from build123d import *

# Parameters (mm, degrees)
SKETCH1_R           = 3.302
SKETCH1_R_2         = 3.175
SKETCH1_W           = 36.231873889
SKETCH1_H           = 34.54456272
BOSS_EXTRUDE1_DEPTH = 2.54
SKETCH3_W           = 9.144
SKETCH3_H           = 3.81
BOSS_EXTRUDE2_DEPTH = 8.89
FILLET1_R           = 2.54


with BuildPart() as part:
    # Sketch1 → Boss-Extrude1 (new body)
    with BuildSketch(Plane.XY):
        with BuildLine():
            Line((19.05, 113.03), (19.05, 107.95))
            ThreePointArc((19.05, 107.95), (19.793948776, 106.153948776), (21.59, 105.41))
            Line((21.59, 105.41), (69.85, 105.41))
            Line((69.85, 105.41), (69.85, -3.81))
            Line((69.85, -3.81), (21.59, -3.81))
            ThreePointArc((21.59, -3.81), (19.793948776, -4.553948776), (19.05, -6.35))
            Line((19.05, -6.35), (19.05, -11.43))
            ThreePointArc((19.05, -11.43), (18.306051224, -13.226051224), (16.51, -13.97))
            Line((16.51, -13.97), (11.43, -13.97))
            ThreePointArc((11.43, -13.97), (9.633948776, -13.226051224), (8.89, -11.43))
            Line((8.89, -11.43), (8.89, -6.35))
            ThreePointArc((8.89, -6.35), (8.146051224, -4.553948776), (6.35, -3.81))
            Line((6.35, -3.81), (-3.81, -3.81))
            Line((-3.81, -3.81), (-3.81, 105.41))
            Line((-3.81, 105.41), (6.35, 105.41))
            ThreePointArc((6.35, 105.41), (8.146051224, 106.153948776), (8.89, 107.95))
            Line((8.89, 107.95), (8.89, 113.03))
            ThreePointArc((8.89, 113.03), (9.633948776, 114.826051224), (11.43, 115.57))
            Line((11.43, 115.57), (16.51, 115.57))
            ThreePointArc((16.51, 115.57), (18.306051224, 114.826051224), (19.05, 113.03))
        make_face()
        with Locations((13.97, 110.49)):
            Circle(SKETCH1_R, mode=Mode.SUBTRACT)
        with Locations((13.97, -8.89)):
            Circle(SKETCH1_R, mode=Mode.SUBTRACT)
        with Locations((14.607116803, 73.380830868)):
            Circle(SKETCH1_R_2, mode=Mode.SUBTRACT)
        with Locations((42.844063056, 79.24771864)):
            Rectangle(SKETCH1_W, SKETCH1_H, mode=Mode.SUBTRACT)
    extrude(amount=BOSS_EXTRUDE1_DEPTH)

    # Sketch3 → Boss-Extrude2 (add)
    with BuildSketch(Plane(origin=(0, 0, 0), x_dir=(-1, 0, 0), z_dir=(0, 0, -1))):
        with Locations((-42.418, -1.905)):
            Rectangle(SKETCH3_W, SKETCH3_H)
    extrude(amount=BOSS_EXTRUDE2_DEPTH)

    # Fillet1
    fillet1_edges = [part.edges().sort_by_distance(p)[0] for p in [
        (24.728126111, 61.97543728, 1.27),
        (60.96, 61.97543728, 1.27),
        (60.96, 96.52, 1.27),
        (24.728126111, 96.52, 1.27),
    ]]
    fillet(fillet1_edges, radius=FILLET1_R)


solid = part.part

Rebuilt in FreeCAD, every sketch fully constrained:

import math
import FreeCAD as App
import Part
import Sketcher
Q = App.Units.Quantity


def edges_at(feature, points):
    """Names of the edges that pass closest to the given points."""
    edges = feature.Shape.Edges
    near = lambda p: min(range(len(edges)), key=lambda i: edges[i].distToShape(Part.Vertex(*p))[0])
    return sorted({f"Edge{near(p) + 1}" for p in points})


def add_polygon(sketch, points):
    """Adds a closed chain of lines whose ends are joined by coincident constraints."""
    first, n = sketch.GeometryCount, len(points)
    for a, b in zip(points, points[1:] + points[:1]):
        sketch.addGeometry(Part.LineSegment(App.Vector(*a, 0), App.Vector(*b, 0)), False)
    for i in range(n):
        sketch.addConstraint(Sketcher.Constraint("Coincident", first + i, 2, first + (i + 1) % n, 1))

doc = App.newDocument("Part")
params = doc.addObject("Spreadsheet::Sheet", "Params")
for row, (alias, value) in enumerate([
    ("sketch1_radius", "0.1 in"),
    ("sketch1_diameter", "0.26 in"),
    ("sketch1_diameter2", "0.25 in"),
    ("sketch1_width", "0.2 in"),
    ("sketch1_width2", "0.4 in"),
    ("pad1_length", "0.1 in"),
    ("sketch2_width", "0.36 in"),
    ("sketch2_height", "0.15 in"),
    ("pad2_length", "0.35 in"),
    ("fillet_radius", "0.1 in"),
], start=1):
    params.set(f"A{row}", alias)
    params.set(f"B{row}", "=" + value)
    params.setAlias(f"B{row}", alias)

body = doc.addObject("PartDesign::Body", "Body")

sketch1 = doc.addObject("Sketcher::SketchObject", "Sketch")
body.addObject(sketch1)
sketch1.AttachmentSupport = (doc.XY_Plane, [""])
sketch1.MapMode = "FlatFace"
sketch1.addGeometry(Part.LineSegment(App.Vector(19.05, 107.95, 0), App.Vector(19.05, 113.03, 0)), False)
sketch1.addGeometry(Part.ArcOfCircle(Part.Circle(App.Vector(16.51, 113.03, 0), App.Vector(0, 0, 1), 2.54), math.radians(0), math.radians(90)), False)
sketch1.addGeometry(Part.LineSegment(App.Vector(16.51, 115.57, 0), App.Vector(11.43, 115.57, 0)), False)
sketch1.addGeometry(Part.ArcOfCircle(Part.Circle(App.Vector(11.43, 113.03, 0), App.Vector(0, 0, 1), 2.54), math.radians(90), math.radians(180)), False)
sketch1.addGeometry(Part.LineSegment(App.Vector(8.89, 113.03, 0), App.Vector(8.89, 107.95, 0)), False)
sketch1.addGeometry(Part.ArcOfCircle(Part.Circle(App.Vector(6.35, 107.95, 0), App.Vector(0, 0, 1), 2.54), math.radians(-90), math.radians(0)), False)
sketch1.addGeometry(Part.LineSegment(App.Vector(6.35, 105.41, 0), App.Vector(-3.81, 105.41, 0)), False)
sketch1.addGeometry(Part.LineSegment(App.Vector(-3.81, 105.41, 0), App.Vector(-3.81, -3.81, 0)), False)
sketch1.addGeometry(Part.LineSegment(App.Vector(-3.81, -3.81, 0), App.Vector(6.35, -3.81, 0)), False)
sketch1.addGeometry(Part.ArcOfCircle(Part.Circle(App.Vector(6.35, -6.35, 0), App.Vector(0, 0, 1), 2.54), math.radians(0), math.radians(90)), False)
sketch1.addGeometry(Part.LineSegment(App.Vector(8.89, -6.35, 0), App.Vector(8.89, -11.43, 0)), False)
sketch1.addGeometry(Part.ArcOfCircle(Part.Circle(App.Vector(11.43, -11.43, 0), App.Vector(0, 0, 1), 2.54), math.radians(-180), math.radians(-90)), False)
sketch1.addGeometry(Part.LineSegment(App.Vector(11.43, -13.97, 0), App.Vector(16.51, -13.97, 0)), False)
sketch1.addGeometry(Part.ArcOfCircle(Part.Circle(App.Vector(16.51, -11.43, 0), App.Vector(0, 0, 1), 2.54), math.radians(-90), math.radians(0)), False)
sketch1.addGeometry(Part.LineSegment(App.Vector(19.05, -11.43, 0), App.Vector(19.05, -6.35, 0)), False)
sketch1.addGeometry(Part.ArcOfCircle(Part.Circle(App.Vector(21.59, -6.35, 0), App.Vector(0, 0, 1), 2.54), math.radians(90), math.radians(180)), False)
sketch1.addGeometry(Part.LineSegment(App.Vector(21.59, -3.81, 0), App.Vector(69.85, -3.81, 0)), False)
sketch1.addGeometry(Part.LineSegment(App.Vector(69.85, -3.81, 0), App.Vector(69.85, 105.41, 0)), False)
sketch1.addGeometry(Part.LineSegment(App.Vector(69.85, 105.41, 0), App.Vector(21.59, 105.41, 0)), False)
sketch1.addGeometry(Part.ArcOfCircle(Part.Circle(App.Vector(21.59, 107.95, 0), App.Vector(0, 0, 1), 2.54), math.radians(-180), math.radians(-90)), False)
sketch1.addGeometry(Part.Circle(App.Vector(13.97, -8.89, 0), App.Vector(0, 0, 1), 3.302), False)
add_polygon(sketch1, [(24.728126, 61.975437), (24.728126, 96.52), (60.96, 96.52), (60.96, 61.975437)])
sketch1.addGeometry(Part.Circle(App.Vector(14.607117, 73.380831, 0), App.Vector(0, 0, 1), 3.175), False)
sketch1.addGeometry(Part.Circle(App.Vector(13.97, 110.49, 0), App.Vector(0, 0, 1), 3.302), False)
sketch1.addConstraint(Sketcher.Constraint("Tangent", 0, 2, 1, 1))
sketch1.addConstraint(Sketcher.Constraint("Tangent", 1, 2, 2, 1))
sketch1.addConstraint(Sketcher.Constraint("Tangent", 2, 2, 3, 1))
sketch1.addConstraint(Sketcher.Constraint("Tangent", 3, 2, 4, 1))
sketch1.addConstraint(Sketcher.Constraint("Tangent", 4, 2, 5, 2))
sketch1.addConstraint(Sketcher.Constraint("Tangent", 5, 1, 6, 1))
sketch1.addConstraint(Sketcher.Constraint("Coincident", 6, 2, 7, 1))
sketch1.addConstraint(Sketcher.Constraint("Coincident", 7, 2, 8, 1))
sketch1.addConstraint(Sketcher.Constraint("Tangent", 8, 2, 9, 2))
sketch1.addConstraint(Sketcher.Constraint("Tangent", 9, 1, 10, 1))
sketch1.addConstraint(Sketcher.Constraint("Tangent", 10, 2, 11, 1))
sketch1.addConstraint(Sketcher.Constraint("Tangent", 11, 2, 12, 1))
sketch1.addConstraint(Sketcher.Constraint("Tangent", 12, 2, 13, 1))
sketch1.addConstraint(Sketcher.Constraint("Tangent", 13, 2, 14, 1))
sketch1.addConstraint(Sketcher.Constraint("Tangent", 14, 2, 15, 2))
sketch1.addConstraint(Sketcher.Constraint("Tangent", 15, 1, 16, 1))
sketch1.addConstraint(Sketcher.Constraint("Coincident", 16, 2, 17, 1))
sketch1.addConstraint(Sketcher.Constraint("Coincident", 17, 2, 18, 1))
sketch1.addConstraint(Sketcher.Constraint("Tangent", 18, 2, 19, 2))
sketch1.addConstraint(Sketcher.Constraint("Tangent", 19, 1, 0, 1))
sketch1.addConstraint(Sketcher.Constraint("Vertical", 0))
sketch1.addConstraint(Sketcher.Constraint("Horizontal", 2))
sketch1.addConstraint(Sketcher.Constraint("Vertical", 4))
sketch1.addConstraint(Sketcher.Constraint("Horizontal", 6))
sketch1.addConstraint(Sketcher.Constraint("Vertical", 7))
sketch1.addConstraint(Sketcher.Constraint("Horizontal", 8))
sketch1.addConstraint(Sketcher.Constraint("Vertical", 10))
sketch1.addConstraint(Sketcher.Constraint("Horizontal", 12))
sketch1.addConstraint(Sketcher.Constraint("Vertical", 14))
sketch1.addConstraint(Sketcher.Constraint("Horizontal", 16))
sketch1.addConstraint(Sketcher.Constraint("Vertical", 17))
sketch1.addConstraint(Sketcher.Constraint("Horizontal", 18))
sketch1.addConstraint(Sketcher.Constraint("Vertical", 21))
sketch1.addConstraint(Sketcher.Constraint("Horizontal", 22))
sketch1.addConstraint(Sketcher.Constraint("Vertical", 23))
sketch1.addConstraint(Sketcher.Constraint("Horizontal", 24))
sketch1.addConstraint(Sketcher.Constraint("Equal", 1, 3))
sketch1.addConstraint(Sketcher.Constraint("Equal", 3, 5))
sketch1.addConstraint(Sketcher.Constraint("Equal", 5, 9))
sketch1.addConstraint(Sketcher.Constraint("Equal", 9, 11))
sketch1.addConstraint(Sketcher.Constraint("Equal", 11, 13))
sketch1.addConstraint(Sketcher.Constraint("Equal", 13, 15))
sketch1.addConstraint(Sketcher.Constraint("Equal", 15, 19))
sketch1.addConstraint(Sketcher.Constraint("Equal", 20, 26))
sketch1.addConstraint(Sketcher.Constraint("Horizontal", 9, 3, 15, 3))
sketch1.addConstraint(Sketcher.Constraint("Horizontal", 5, 3, 19, 3))
sketch1.addConstraint(Sketcher.Constraint("Vertical", 5, 3, 9, 3))
sketch1.addConstraint(Sketcher.Constraint("Vertical", 1, 3, 13, 3))
sketch1.addConstraint(Sketcher.Constraint("Vertical", 20, 3, 26, 3))
sketch1.addConstraint(Sketcher.Constraint("Equal", 12, 0))
sketch1.addConstraint(Sketcher.Constraint("Equal", 4, 10))
sketch1.addConstraint(Sketcher.Constraint("Radius", 1, Q("0.1 in")))
sketch1.addConstraint(Sketcher.Constraint("Diameter", 20, Q("0.26 in")))
sketch1.addConstraint(Sketcher.Constraint("Diameter", 25, Q("0.25 in")))
sketch1.addConstraint(Sketcher.Constraint("DistanceX", 2, 2, 2, 1, Q("0.2 in")))
sketch1.addConstraint(Sketcher.Constraint("DistanceX", 6, 2, 6, 1, Q("0.4 in")))
sketch1.addConstraint(Sketcher.Constraint("DistanceX", 16, 1, 16, 2, Q("1.9 in")))
sketch1.addConstraint(Sketcher.Constraint("DistanceY", 7, 2, 7, 1, Q("4.3 in")))
sketch1.addConstraint(Sketcher.Constraint("DistanceY", -1, 1, 21, 2, Q("3.8 in")))
sketch1.addConstraint(Sketcher.Constraint("DistanceX", -1, 1, 22, 2, Q("2.4 in")))
sketch1.addConstraint(Sketcher.Constraint("DistanceX", 11, 3, 20, 3, Q("0.1 in")))
sketch1.addConstraint(Sketcher.Constraint("DistanceY", 11, 3, 20, 3, Q("0.1 in")))
sketch1.addConstraint(Sketcher.Constraint("DistanceY", 26, 3, 1, 3, Q("0.1 in")))
sketch1.addConstraint(Sketcher.Constraint("DistanceX", -1, 1, 1, 3, Q("0.65 in")))
sketch1.addConstraint(Sketcher.Constraint("DistanceY", -1, 1, 1, 3, Q("4.45 in")))
sketch1.addConstraint(Sketcher.Constraint("DistanceX", 22, 1, 22, 2, 36.231874))
sketch1.addConstraint(Sketcher.Constraint("DistanceY", 21, 1, 21, 2, 34.544563))
sketch1.addConstraint(Sketcher.Constraint("DistanceY", -1, 1, 25, 3, 73.380831))
sketch1.addConstraint(Sketcher.Constraint("DistanceX", 25, 3, 24, 2, 10.121009))
sketch1.setExpression("Constraints[55]", "Params.sketch1_radius")
sketch1.setExpression("Constraints[56]", "Params.sketch1_diameter")
sketch1.setExpression("Constraints[57]", "Params.sketch1_diameter2")
sketch1.setExpression("Constraints[58]", "Params.sketch1_width")
sketch1.setExpression("Constraints[59]", "Params.sketch1_width2")
pad1 = doc.addObject("PartDesign::Pad", "Pad")
body.addObject(pad1)
pad1.Profile = sketch1
pad1.setExpression("Length", "Params.pad1_length")

sketch2 = doc.addObject("Sketcher::SketchObject", "Sketch001")
body.addObject(sketch2)
sketch2.AttachmentSupport = (doc.XY_Plane, [""])
sketch2.MapMode = "FlatFace"
add_polygon(sketch2, [(46.99, 0), (46.99, -3.81), (37.846, -3.81), (37.846, 0)])
sketch2.addConstraint(Sketcher.Constraint("Vertical", 0))
sketch2.addConstraint(Sketcher.Constraint("Horizontal", 1))
sketch2.addConstraint(Sketcher.Constraint("Vertical", 2))
sketch2.addConstraint(Sketcher.Constraint("Horizontal", 3))
sketch2.addConstraint(Sketcher.Constraint("PointOnObject", 2, 2, -1))
sketch2.addConstraint(Sketcher.Constraint("DistanceX", 1, 2, 1, 1, Q("0.36 in")))
sketch2.addConstraint(Sketcher.Constraint("DistanceY", 0, 2, 0, 1, Q("0.15 in")))
sketch2.addConstraint(Sketcher.Constraint("DistanceX", -1, 1, 0, 2, Q("1.85 in")))
sketch2.setExpression("Constraints[9]", "Params.sketch2_width")
sketch2.setExpression("Constraints[10]", "Params.sketch2_height")
pad2 = doc.addObject("PartDesign::Pad", "Pad001")
body.addObject(pad2)
pad2.Profile = sketch2
pad2.setExpression("Length", "Params.pad2_length")
pad2.Reversed = True
doc.recompute()

fillet = doc.addObject("PartDesign::Fillet", "Fillet")
body.addObject(fillet)
fillet.Base = (pad2, edges_at(pad2, [
    (24.728, 61.975, 1.27),
    (60.96, 61.975, 1.27),
    (60.96, 96.52, 1.27),
    (24.728, 96.52, 1.27),
]))
fillet.setExpression("Radius", "Params.fillet_radius")

doc.recompute()
